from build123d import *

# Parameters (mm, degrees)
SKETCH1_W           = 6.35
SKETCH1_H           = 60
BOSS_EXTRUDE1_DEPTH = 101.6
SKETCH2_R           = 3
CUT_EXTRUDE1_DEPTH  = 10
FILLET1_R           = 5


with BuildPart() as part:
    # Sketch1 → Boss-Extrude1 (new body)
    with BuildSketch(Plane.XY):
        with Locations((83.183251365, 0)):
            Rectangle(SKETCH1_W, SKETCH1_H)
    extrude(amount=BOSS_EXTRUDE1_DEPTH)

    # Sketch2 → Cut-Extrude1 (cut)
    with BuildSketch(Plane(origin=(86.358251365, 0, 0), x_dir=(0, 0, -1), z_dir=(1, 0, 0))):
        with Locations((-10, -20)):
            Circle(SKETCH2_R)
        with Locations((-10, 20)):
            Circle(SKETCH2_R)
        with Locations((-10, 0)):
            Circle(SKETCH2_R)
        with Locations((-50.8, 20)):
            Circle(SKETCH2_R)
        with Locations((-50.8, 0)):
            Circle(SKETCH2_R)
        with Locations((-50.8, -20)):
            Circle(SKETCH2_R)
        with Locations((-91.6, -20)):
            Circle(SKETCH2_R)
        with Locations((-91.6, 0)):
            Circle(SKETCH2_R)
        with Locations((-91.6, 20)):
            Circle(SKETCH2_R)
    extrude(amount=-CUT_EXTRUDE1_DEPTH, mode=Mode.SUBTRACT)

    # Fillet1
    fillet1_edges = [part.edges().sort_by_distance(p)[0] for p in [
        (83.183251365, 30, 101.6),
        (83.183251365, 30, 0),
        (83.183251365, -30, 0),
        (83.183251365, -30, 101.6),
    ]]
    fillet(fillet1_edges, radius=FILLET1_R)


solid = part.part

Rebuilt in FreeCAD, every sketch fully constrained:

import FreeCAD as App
import Part
import Sketcher

V = App.Vector
Q = App.Units.Quantity


def edges_at(feature, points):
    """Names of the edges that pass closest to the given points."""
    edges = feature.Shape.Edges
    near = lambda p: min(range(len(edges)), key=lambda i: edges[i].distToShape(Part.Vertex(*p))[0])
    return sorted({f"Edge{near(p) + 1}" for p in points})

doc = App.newDocument("Part")
params = doc.addObject("Spreadsheet::Sheet", "Params")
for row, (alias, value) in enumerate([
    ("sketch1_height", "60 mm"),
    ("sketch1_width", "6.35 mm"),
    ("pad1_length", "101.6 mm"),
    ("sketch2_diameter", "6 mm"),
    ("pocket1_length", "10 mm"),
    ("fillet_radius", "5 mm"),
], start=1):
    params.set(f"A{row}", alias)
    params.set(f"B{row}", "=" + value)
    params.setAlias(f"B{row}", alias)

body = doc.addObject("PartDesign::Body", "Body")

sketch1 = body.newObject("Sketcher::SketchObject", "Sketch")
sketch1.AttachmentSupport = (doc.getObject("XY_Plane"), [""])
sketch1.MapMode = "FlatFace"
sketch1.addGeometry([
    Part.LineSegment(V(80, 30, 0), V(80, -30, 0)),
    Part.LineSegment(V(80, -30, 0), V(86, -30, 0)),
    Part.LineSegment(V(86, -30, 0), V(86, 30, 0)),
    Part.LineSegment(V(86, 30, 0), V(80, 30, 0)),
], False)
sketch1.addConstraint([
    Sketcher.Constraint("Coincident", 0, 2, 1, 1),
    Sketcher.Constraint("Coincident", 1, 2, 2, 1),
    Sketcher.Constraint("Coincident", 2, 2, 3, 1),
    Sketcher.Constraint("Coincident", 3, 2, 0, 1),
    Sketcher.Constraint("Vertical", 0),
    Sketcher.Constraint("Horizontal", 1),
    Sketcher.Constraint("Vertical", 2),
    Sketcher.Constraint("Horizontal", 3),
    Sketcher.Constraint("DistanceY", 0, 2, 0, 1, Q("60 mm")),
    Sketcher.Constraint("DistanceY", 0, 2, -1, 1, Q("30 mm")),
    Sketcher.Constraint("DistanceX", 1, 1, 1, 2, Q("6.35 mm")),
    Sketcher.Constraint("DistanceX", -1, 1, 0, 2, Q("80.008251 mm")),
])
sketch1.setExpression("Constraints[8]", "Params.sketch1_height")
sketch1.setExpression("Constraints[10]", "Params.sketch1_width")
pad1 = body.newObject("PartDesign::Pad", "Pad")
pad1.Profile = sketch1
pad1.setExpression("Length", "Params.pad1_length")

sketch2 = body.newObject("Sketcher::SketchObject", "Sketch001")
sketch2.AttachmentSupport = (doc.getObject("YZ_Plane"), [""])
sketch2.MapMode = "FlatFace"
sketch2.AttachmentOffset = App.Placement(V(0, 0, 86.358251), App.Rotation())
sketch2.addGeometry([
    Part.Circle(V(-20, 10, 0), V(0, 0, 1), 3),
    Part.Circle(V(20, 10, 0), V(0, 0, 1), 3),
    Part.Circle(V(0, 10, 0), V(0, 0, 1), 3),
    Part.Circle(V(20, 50.8, 0), V(0, 0, 1), 3),
    Part.Circle(V(0, 50.8, 0), V(0, 0, 1), 3),
    Part.Circle(V(-20, 50.8, 0), V(0, 0, 1), 3),
    Part.Circle(V(-20, 91.6, 0), V(0, 0, 1), 3),
    Part.Circle(V(0, 91.6, 0), V(0, 0, 1), 3),
    Part.Circle(V(20, 91.6, 0), V(0, 0, 1), 3),
], False)
sketch2.addConstraint([
    Sketcher.Constraint("Equal", 0, 1),
    Sketcher.Constraint("Equal", 1, 2),
    Sketcher.Constraint("Equal", 2, 3),
    Sketcher.Constraint("Equal", 3, 4),
    Sketcher.Constraint("Equal", 4, 5),
    Sketcher.Constraint("Equal", 5, 6),
    Sketcher.Constraint("Equal", 6, 7),
    Sketcher.Constraint("Equal", 7, 8),
    Sketcher.Constraint("Symmetric", 0, 3, 1, 3, -2),
    Sketcher.Constraint("Symmetric", 3, 3, 5, 3, -2),
    Sketcher.Constraint("Symmetric", 6, 3, 8, 3, -2),
    Sketcher.Constraint("PointOnObject", 2, 3, -2),
    Sketcher.Constraint("PointOnObject", 4, 3, -2),
    Sketcher.Constraint("PointOnObject", 7, 3, -2),
    Sketcher.Constraint("Horizontal", 1, 3, 2, 3),
    Sketcher.Constraint("Horizontal", 3, 3, 4, 3),
    Sketcher.Constraint("Horizontal", 6, 3, 7, 3),
    Sketcher.Constraint("Vertical", 1, 3, 3, 3),
    Sketcher.Constraint("Vertical", 5, 3, 6, 3),
    Sketcher.Constraint("Diameter", 0, Q("6 mm")),
    Sketcher.Constraint("DistanceX", 0, 3, -1, 1, Q("20 mm")),
    Sketcher.Constraint("DistanceY", -1, 1, 0, 3, Q("10 mm")),
    Sketcher.Constraint("DistanceY", -1, 1, 3, 3, Q("50.8 mm")),
    Sketcher.Constraint("DistanceY", -1, 1, 6, 3, Q("91.6 mm")),
])
sketch2.setExpression("Constraints[19]", "Params.sketch2_diameter")
pocket1 = body.newObject("PartDesign::Pocket", "Pocket")
pocket1.Profile = sketch2
pocket1.setExpression("Length", "Params.pocket1_length")
doc.recompute()

fillet = body.newObject("PartDesign::Fillet", "Fillet")
fillet.Base = (pocket1, edges_at(pocket1, [
    (83.183, 30, 101.6),
    (83.183, 30, 0),
    (83.183, -30, 0),
    (83.183, -30, 101.6),
]))
fillet.setExpression("Radius", "Params.fillet_radius")

doc.recompute()
